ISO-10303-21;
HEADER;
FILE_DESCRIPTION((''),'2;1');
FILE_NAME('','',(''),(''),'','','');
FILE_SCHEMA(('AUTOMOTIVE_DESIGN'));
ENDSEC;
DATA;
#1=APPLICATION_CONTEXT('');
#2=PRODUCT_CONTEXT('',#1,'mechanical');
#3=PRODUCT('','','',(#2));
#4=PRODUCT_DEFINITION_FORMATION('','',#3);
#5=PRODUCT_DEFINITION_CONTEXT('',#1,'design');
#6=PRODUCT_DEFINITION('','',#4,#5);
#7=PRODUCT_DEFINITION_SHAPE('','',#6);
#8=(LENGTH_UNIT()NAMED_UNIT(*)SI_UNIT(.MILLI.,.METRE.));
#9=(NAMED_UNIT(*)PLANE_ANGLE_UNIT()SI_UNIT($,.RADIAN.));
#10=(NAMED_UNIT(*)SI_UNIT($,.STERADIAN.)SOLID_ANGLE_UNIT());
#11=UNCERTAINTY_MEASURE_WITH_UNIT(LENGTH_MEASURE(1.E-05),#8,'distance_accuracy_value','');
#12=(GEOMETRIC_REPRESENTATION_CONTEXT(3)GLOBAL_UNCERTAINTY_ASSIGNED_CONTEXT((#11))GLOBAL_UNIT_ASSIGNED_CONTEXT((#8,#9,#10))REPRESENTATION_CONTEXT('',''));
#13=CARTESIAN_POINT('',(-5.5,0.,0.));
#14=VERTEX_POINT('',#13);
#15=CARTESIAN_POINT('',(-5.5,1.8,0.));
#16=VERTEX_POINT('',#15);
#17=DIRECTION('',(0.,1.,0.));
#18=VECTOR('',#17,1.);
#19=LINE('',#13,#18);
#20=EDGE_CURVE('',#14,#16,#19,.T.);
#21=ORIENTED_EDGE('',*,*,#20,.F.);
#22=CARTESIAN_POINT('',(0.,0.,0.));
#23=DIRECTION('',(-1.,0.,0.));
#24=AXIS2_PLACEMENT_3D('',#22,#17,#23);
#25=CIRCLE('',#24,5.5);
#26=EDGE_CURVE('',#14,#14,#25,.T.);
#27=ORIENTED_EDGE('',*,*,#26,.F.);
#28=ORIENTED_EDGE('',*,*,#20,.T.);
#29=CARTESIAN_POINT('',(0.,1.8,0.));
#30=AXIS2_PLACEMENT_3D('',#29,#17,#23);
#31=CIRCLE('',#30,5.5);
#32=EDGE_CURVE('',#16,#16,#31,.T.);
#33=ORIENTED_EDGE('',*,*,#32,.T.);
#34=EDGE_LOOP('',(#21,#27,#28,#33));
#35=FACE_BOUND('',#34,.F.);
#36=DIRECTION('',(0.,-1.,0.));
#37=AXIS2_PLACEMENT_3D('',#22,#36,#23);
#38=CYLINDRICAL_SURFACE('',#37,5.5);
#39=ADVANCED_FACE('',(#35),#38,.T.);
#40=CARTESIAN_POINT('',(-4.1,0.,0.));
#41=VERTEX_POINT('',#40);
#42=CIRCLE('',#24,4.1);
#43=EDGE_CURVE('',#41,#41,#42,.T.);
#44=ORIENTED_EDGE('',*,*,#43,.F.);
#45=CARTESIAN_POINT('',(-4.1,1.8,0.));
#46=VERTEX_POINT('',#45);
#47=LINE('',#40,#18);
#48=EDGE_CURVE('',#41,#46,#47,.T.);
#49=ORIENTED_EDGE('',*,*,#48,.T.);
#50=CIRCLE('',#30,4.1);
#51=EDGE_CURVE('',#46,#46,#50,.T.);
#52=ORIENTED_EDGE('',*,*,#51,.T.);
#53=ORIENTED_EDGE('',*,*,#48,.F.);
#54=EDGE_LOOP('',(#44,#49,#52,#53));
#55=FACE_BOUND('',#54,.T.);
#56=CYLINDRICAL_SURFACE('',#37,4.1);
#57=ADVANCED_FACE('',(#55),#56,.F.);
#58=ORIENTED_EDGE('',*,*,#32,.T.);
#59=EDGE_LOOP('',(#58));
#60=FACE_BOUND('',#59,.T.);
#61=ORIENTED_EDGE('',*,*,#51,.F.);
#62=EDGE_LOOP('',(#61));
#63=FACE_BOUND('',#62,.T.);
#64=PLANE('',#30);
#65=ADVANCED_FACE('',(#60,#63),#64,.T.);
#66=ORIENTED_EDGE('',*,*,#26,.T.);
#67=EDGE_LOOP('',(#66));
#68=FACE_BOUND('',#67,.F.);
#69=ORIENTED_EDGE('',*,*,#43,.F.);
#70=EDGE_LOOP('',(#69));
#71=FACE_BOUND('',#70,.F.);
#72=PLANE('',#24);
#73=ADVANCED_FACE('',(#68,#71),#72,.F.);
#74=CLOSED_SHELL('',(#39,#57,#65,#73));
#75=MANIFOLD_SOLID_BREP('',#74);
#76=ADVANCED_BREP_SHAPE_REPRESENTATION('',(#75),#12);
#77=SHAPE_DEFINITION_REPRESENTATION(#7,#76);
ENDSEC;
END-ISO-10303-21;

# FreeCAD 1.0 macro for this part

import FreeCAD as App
import Part
import Sketcher
Q = App.Units.Quantity

doc = App.newDocument("Part")
body = doc.addObject("PartDesign::Body", "Body")

# Sketch on XZ plane
sketch1 = body.newObject("Sketcher::SketchObject", "Sketch")
sketch1.AttachmentSupport = (doc.getObject("XZ_Plane"), [""])
sketch1.MapMode = "FlatFace"
sketch1.addGeometry(Part.Circle(App.Vector(0, 0, 0), App.Vector(0, 0, 1), 5.5), False)
sketch1.addGeometry(Part.Circle(App.Vector(0, 0, 0), App.Vector(0, 0, 1), 4.1), False)
sketch1.addConstraint(Sketcher.Constraint("Coincident", 0, 3, -1, 1))
sketch1.addConstraint(Sketcher.Constraint("Coincident", 1, 3, -1, 1))
sketch1.addConstraint(Sketcher.Constraint("Diameter", 0, Q("11 mm")))
sketch1.addConstraint(Sketcher.Constraint("Diameter", 1, Q("8.2 mm")))
pad1 = body.newObject("PartDesign::Pad", "Pad")
pad1.Profile = sketch1
pad1.Length = 1.8
pad1.Reversed = True

doc.recompute()
